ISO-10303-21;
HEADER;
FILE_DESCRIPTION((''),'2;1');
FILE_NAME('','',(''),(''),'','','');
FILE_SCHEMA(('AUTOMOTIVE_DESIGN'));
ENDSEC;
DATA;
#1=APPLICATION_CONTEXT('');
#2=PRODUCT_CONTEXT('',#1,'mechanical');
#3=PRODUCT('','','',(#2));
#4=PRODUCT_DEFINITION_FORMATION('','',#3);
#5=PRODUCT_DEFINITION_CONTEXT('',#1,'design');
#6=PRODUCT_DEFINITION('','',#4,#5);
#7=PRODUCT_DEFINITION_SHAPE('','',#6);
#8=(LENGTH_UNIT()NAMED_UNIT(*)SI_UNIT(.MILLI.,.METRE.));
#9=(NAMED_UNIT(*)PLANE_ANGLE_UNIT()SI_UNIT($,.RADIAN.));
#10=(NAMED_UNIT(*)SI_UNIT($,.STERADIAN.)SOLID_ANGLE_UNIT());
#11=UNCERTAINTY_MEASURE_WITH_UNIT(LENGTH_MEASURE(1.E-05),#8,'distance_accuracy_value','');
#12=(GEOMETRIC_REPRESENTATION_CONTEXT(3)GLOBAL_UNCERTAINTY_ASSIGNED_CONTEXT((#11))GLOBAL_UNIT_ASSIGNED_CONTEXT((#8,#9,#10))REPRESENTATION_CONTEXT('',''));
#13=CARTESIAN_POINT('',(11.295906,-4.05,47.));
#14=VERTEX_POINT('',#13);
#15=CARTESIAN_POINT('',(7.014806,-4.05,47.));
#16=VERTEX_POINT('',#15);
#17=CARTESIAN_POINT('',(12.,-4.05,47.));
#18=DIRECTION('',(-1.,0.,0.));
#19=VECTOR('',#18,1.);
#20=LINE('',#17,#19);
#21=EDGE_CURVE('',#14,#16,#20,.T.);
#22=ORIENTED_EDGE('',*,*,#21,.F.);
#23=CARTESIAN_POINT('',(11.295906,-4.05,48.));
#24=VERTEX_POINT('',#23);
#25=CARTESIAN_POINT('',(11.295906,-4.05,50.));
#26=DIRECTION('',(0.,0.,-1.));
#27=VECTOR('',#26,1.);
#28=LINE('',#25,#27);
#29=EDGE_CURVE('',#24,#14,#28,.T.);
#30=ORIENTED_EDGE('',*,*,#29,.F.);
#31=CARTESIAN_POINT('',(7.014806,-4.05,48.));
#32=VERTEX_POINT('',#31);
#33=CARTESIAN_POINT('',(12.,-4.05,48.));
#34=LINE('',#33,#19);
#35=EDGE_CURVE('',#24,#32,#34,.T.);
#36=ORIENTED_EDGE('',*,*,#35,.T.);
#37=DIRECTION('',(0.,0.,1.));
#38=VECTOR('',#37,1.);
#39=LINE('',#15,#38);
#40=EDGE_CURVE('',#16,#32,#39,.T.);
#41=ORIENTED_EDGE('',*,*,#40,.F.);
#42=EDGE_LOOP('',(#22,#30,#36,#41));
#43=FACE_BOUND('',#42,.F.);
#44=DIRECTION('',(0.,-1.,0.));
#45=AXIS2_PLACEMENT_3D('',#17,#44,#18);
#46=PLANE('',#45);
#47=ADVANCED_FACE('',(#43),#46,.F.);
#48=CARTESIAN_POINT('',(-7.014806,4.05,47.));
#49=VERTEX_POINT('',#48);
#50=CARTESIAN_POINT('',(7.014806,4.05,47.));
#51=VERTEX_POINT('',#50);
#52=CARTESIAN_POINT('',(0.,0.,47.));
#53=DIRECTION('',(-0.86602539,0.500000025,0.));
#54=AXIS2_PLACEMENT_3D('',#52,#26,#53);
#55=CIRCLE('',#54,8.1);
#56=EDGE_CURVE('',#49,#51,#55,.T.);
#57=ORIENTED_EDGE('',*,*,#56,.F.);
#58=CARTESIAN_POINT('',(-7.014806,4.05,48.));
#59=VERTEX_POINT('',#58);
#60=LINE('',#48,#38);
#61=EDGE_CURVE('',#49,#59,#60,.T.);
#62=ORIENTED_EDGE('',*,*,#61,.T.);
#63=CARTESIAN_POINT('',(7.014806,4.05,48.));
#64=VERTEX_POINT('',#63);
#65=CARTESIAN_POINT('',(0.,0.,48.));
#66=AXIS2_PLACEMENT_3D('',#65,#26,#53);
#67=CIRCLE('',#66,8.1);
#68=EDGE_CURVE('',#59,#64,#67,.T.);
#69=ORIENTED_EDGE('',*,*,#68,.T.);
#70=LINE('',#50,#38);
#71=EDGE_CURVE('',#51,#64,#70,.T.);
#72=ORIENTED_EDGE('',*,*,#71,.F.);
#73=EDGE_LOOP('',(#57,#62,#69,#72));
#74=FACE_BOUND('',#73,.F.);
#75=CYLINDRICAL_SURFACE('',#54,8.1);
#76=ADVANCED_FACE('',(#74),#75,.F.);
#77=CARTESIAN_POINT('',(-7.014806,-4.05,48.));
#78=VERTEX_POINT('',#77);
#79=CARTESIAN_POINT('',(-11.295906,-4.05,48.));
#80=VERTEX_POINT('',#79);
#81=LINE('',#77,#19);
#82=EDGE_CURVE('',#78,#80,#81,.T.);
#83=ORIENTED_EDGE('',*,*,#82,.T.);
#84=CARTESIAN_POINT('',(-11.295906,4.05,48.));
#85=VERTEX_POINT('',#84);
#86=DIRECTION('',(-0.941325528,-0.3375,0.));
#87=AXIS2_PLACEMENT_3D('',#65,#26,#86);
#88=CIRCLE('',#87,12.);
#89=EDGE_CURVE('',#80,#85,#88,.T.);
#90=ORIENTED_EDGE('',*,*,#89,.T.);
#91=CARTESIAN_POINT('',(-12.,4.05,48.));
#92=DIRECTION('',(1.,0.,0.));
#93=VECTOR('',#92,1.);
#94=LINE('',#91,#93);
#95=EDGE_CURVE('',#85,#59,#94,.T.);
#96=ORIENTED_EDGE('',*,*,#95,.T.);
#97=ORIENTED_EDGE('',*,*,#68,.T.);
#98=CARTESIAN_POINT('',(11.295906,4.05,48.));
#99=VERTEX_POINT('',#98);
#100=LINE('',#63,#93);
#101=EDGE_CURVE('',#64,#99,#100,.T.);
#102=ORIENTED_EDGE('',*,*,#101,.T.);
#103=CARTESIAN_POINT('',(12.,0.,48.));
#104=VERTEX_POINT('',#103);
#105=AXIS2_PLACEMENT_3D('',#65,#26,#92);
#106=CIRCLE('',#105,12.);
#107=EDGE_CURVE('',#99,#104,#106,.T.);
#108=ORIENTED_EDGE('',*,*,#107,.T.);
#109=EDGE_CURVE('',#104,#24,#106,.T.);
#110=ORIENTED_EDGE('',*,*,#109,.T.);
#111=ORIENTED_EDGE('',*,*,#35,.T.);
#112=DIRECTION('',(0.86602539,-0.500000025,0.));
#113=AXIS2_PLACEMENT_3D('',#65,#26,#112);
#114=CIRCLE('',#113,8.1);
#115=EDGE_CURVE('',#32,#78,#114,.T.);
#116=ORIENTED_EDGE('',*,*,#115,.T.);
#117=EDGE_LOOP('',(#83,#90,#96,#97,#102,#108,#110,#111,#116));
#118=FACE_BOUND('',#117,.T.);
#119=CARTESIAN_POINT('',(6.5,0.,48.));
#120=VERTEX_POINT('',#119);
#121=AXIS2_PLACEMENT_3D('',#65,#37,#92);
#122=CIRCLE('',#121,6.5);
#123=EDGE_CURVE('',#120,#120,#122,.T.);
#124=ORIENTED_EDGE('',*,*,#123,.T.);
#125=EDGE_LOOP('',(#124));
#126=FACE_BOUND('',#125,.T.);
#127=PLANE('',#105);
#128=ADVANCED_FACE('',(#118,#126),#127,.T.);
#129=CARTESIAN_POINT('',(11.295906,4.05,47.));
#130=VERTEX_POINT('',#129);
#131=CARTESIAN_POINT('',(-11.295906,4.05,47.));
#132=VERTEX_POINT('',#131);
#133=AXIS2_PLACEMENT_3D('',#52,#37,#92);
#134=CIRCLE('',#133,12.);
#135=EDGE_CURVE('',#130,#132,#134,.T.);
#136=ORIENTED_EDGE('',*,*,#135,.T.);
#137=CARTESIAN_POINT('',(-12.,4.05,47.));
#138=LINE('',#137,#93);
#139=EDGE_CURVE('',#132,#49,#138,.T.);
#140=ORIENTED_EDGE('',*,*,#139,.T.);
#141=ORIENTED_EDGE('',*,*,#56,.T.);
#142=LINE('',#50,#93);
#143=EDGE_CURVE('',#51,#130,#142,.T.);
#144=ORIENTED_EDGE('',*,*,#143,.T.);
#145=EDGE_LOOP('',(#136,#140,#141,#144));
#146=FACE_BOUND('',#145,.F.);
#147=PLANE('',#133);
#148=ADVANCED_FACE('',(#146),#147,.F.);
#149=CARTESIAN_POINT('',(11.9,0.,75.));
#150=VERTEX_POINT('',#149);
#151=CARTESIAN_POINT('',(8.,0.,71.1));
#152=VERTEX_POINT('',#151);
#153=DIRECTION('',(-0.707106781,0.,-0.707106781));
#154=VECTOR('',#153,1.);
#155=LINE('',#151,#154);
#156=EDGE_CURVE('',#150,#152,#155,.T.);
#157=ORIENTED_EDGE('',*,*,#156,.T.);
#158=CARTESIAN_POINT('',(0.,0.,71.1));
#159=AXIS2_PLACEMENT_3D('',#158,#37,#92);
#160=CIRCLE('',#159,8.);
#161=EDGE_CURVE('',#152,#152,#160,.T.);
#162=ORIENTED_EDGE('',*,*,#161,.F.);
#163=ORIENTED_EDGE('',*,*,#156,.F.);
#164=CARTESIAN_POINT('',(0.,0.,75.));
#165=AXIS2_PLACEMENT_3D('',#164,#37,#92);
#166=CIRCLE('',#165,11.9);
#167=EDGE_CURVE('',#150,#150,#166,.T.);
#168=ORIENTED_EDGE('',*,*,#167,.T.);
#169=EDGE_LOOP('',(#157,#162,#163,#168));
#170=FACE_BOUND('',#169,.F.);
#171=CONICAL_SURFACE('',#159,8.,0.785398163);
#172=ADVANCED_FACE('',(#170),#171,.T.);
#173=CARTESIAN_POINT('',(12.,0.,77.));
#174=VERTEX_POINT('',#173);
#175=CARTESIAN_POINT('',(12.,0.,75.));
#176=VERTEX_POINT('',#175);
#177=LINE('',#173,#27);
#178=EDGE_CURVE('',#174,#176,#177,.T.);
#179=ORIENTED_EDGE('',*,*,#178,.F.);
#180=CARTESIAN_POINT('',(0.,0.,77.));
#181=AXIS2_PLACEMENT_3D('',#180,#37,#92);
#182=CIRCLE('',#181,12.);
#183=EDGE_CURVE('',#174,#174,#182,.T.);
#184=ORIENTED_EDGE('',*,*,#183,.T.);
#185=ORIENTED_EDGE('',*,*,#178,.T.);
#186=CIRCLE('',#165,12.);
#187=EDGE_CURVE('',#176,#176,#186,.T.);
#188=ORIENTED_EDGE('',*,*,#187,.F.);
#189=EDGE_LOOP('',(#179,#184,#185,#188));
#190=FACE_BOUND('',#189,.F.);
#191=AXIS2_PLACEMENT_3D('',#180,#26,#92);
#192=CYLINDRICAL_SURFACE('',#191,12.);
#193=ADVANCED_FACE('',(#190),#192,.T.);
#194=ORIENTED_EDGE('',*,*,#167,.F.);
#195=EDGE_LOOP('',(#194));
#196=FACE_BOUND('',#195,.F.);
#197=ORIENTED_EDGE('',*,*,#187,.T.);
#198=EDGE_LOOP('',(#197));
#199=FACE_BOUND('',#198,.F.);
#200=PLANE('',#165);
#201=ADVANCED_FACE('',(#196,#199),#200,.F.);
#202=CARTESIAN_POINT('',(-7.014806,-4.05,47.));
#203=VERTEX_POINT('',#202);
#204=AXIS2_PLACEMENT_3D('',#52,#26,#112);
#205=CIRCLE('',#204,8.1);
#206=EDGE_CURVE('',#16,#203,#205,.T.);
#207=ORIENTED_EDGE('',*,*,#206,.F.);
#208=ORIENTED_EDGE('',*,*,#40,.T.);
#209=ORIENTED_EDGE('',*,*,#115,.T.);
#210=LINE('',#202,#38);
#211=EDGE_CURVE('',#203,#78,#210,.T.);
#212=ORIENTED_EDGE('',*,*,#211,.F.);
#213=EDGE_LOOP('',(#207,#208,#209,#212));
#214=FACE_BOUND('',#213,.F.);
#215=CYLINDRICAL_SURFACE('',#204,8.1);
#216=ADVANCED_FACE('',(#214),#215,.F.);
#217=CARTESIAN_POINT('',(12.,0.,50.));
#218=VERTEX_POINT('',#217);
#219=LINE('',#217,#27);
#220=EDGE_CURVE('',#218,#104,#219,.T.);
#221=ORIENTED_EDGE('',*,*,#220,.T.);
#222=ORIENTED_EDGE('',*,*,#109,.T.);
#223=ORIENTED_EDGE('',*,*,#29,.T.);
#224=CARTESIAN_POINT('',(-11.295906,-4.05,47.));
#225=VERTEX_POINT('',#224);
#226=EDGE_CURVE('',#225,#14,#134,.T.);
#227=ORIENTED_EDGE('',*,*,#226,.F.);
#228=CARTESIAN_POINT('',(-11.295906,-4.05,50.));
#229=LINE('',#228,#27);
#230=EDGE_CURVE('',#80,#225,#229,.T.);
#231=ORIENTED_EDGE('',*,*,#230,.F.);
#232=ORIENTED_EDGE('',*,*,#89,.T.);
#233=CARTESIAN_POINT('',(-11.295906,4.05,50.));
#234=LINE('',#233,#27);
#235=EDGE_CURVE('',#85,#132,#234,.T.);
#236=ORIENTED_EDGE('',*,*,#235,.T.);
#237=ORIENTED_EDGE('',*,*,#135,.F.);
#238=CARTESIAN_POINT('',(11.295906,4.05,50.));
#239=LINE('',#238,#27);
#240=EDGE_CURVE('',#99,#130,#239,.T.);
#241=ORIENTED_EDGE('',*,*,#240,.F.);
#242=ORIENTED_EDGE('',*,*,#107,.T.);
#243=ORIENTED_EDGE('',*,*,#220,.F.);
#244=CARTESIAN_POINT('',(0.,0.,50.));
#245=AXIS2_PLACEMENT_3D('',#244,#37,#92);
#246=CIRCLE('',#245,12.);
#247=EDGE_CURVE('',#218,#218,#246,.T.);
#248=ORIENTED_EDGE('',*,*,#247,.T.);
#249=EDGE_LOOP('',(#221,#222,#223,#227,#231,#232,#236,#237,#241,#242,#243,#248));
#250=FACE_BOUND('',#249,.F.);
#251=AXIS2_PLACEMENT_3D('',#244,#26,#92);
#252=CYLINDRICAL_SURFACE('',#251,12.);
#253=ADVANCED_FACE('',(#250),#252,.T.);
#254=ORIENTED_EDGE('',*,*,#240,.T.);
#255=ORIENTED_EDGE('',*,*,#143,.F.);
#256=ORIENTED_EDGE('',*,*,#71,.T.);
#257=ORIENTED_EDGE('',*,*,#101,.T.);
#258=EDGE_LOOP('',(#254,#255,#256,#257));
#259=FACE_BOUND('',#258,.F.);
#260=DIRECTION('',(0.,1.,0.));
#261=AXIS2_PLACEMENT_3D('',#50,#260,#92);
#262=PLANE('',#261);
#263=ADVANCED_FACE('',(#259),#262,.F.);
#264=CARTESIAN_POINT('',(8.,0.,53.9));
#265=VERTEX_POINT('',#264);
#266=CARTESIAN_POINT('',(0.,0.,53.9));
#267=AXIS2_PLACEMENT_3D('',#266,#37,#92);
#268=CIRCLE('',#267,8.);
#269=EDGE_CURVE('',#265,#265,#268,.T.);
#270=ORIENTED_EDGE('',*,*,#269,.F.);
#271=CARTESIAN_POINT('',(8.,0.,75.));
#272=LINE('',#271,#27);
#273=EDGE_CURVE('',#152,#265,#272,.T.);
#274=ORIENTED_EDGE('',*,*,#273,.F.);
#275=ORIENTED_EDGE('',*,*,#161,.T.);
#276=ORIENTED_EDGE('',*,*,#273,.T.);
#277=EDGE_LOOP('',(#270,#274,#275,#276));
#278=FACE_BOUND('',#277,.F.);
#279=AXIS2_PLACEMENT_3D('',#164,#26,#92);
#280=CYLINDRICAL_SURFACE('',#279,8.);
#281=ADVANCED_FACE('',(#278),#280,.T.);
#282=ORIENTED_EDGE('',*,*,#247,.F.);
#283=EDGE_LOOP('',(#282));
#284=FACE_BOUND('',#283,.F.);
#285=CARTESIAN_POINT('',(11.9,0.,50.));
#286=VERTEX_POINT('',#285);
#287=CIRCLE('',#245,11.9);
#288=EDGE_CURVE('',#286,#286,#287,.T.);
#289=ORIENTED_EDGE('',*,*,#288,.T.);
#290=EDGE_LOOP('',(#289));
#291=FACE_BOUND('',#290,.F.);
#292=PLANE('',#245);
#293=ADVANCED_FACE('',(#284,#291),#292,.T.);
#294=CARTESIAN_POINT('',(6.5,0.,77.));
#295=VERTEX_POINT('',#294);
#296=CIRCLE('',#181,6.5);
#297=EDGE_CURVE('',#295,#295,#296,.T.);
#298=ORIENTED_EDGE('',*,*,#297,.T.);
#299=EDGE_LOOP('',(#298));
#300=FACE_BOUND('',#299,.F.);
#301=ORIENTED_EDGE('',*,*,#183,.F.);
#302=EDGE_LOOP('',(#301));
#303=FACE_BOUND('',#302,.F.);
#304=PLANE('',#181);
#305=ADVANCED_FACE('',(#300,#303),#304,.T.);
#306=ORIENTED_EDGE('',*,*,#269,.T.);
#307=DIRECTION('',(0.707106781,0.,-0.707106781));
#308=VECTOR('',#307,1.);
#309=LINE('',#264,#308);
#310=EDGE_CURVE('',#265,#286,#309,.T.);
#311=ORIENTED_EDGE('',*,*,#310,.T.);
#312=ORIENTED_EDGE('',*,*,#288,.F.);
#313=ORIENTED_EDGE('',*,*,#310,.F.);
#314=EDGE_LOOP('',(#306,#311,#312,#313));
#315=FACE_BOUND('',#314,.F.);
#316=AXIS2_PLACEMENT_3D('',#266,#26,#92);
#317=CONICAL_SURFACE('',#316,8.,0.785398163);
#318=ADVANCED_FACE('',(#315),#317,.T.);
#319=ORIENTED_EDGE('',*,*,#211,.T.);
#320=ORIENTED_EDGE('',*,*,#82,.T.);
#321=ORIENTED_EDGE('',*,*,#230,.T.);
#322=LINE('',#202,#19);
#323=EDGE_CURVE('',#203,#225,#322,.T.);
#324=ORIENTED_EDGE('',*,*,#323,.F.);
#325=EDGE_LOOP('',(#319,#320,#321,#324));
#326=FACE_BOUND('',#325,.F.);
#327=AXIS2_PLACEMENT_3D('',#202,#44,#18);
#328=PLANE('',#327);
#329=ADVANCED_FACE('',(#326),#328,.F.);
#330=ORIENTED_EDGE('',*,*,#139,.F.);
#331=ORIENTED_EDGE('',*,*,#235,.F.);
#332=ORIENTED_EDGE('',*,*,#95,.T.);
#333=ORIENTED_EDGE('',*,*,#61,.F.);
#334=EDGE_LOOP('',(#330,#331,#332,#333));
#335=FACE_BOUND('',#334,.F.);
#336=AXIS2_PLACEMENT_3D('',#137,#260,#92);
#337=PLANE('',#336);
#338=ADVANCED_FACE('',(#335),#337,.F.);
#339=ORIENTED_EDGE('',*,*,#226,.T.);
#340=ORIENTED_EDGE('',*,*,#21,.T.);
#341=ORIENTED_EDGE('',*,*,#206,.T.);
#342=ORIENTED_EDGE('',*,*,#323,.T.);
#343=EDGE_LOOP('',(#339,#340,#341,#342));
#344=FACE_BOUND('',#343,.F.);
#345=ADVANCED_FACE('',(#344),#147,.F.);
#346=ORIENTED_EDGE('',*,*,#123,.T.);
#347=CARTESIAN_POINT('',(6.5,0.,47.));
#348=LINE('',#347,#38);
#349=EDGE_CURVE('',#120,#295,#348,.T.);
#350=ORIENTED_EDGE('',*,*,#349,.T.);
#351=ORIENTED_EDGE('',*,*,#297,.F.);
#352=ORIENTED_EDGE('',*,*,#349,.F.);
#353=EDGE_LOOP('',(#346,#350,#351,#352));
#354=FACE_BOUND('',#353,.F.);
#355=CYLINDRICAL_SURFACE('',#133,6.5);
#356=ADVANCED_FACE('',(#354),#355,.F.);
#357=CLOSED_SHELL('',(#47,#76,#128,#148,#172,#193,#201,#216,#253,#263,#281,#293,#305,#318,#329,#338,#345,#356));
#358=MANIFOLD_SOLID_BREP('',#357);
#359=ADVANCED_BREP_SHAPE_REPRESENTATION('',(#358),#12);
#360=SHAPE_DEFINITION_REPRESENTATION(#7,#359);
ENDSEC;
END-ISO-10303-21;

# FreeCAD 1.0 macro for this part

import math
import FreeCAD as App
import Part
import Sketcher

V = App.Vector


def edges_at(feature, points):
    """Names of the edges that pass closest to the given points."""
    edges = feature.Shape.Edges
    near = lambda p: min(range(len(edges)), key=lambda i: edges[i].distToShape(Part.Vertex(*p))[0])
    return sorted({f"Edge{near(p) + 1}" for p in points})


def add_polygon(sketch, points):
    """Adds a closed chain of lines whose ends are joined by coincident constraints."""
    first, n = sketch.GeometryCount, len(points)
    for a, b in zip(points, points[1:] + points[:1]):
        sketch.addGeometry(Part.LineSegment(App.Vector(*a, 0), App.Vector(*b, 0)), False)
    for i in range(n):
        sketch.addConstraint(Sketcher.Constraint("Coincident", first + i, 2, first + (i + 1) % n, 1))

doc = App.newDocument("Part")
body = doc.addObject("PartDesign::Body", "Body")

sketch1 = body.newObject("Sketcher::SketchObject", "Sketch")
sketch1.AttachmentSupport = (doc.getObject("XZ_Plane"), [""])
sketch1.MapMode = "FlatFace"
add_polygon(sketch1, [(12, 77), (6.5, 77), (6.5, 47), (12, 47), (12, 50), (8, 50), (8, 75), (12, 75)])
sketch1.addConstraint([
    Sketcher.Constraint("Horizontal", 0),
    Sketcher.Constraint("Vertical", 1),
    Sketcher.Constraint("Horizontal", 2),
    Sketcher.Constraint("Vertical", 3),
    Sketcher.Constraint("Horizontal", 4),
    Sketcher.Constraint("Vertical", 5),
    Sketcher.Constraint("Horizontal", 6),
    Sketcher.Constraint("Vertical", 7),
    Sketcher.Constraint("Vertical", 3, 2, 6, 2),
    Sketcher.Constraint("DistanceX", 4, 2, 4, 1, 4.0),
    Sketcher.Constraint("DistanceY", 1, 2, 1, 1, 30.0),
    Sketcher.Constraint("DistanceY", 3, 1, 3, 2, 3.0),
    Sketcher.Constraint("DistanceY", 5, 1, 5, 2, 25.0),
    Sketcher.Constraint("DistanceX", 0, 2, 0, 1, 5.5),
    Sketcher.Constraint("DistanceY", -1, 1, 0, 2, 77.0),
    Sketcher.Constraint("DistanceX", -1, 1, 2, 2, 12.0),
])
revolution = body.newObject("PartDesign::Revolution", "Revolution")
revolution.Profile = sketch1
revolution.ReferenceAxis = (sketch1, ["V_Axis"])
revolution.Angle = 360

sketch2 = body.newObject("Sketcher::SketchObject", "Sketch001")
sketch2.AttachmentSupport = (doc.getObject("XY_Plane"), [""])
sketch2.MapMode = "FlatFace"
sketch2.AttachmentOffset = App.Placement(V(0, 0, 47), App.Rotation())
sketch2.addGeometry([
    Part.ArcOfCircle(Part.Circle(V(0, 0, 0), V(0, 0, 1), 8.1), math.radians(-150), math.radians(-30)),
    Part.LineSegment(V(-7, -4, 0), V(-12, -4, 0)),
    Part.LineSegment(V(-12, -4, 0), V(-12, 4, 0)),
    Part.LineSegment(V(-12, 4, 0), V(-7, 4, 0)),
    Part.ArcOfCircle(Part.Circle(V(0, 0, 0), V(0, 0, 1), 8.1), math.radians(30), math.radians(150)),
    Part.LineSegment(V(7, 4, 0), V(12, 4, 0)),
    Part.LineSegment(V(12, 4, 0), V(12, -4, 0)),
    Part.LineSegment(V(12, -4, 0), V(7, -4, 0)),
], False)
sketch2.addConstraint([
    Sketcher.Constraint("Coincident", 0, 1, 1, 1),
    Sketcher.Constraint("Coincident", 1, 2, 2, 1),
    Sketcher.Constraint("Coincident", 2, 2, 3, 1),
    Sketcher.Constraint("Coincident", 3, 2, 4, 2),
    Sketcher.Constraint("Coincident", 4, 1, 5, 1),
    Sketcher.Constraint("Coincident", 5, 2, 6, 1),
    Sketcher.Constraint("Coincident", 6, 2, 7, 1),
    Sketcher.Constraint("Coincident", 7, 2, 0, 2),
    Sketcher.Constraint("Horizontal", 1),
    Sketcher.Constraint("Vertical", 2),
    Sketcher.Constraint("Horizontal", 3),
    Sketcher.Constraint("Horizontal", 5),
    Sketcher.Constraint("Vertical", 6),
    Sketcher.Constraint("Horizontal", 7),
    Sketcher.Constraint("Coincident", 0, 3, -1, 1),
    Sketcher.Constraint("Coincident", 4, 3, -1, 1),
    Sketcher.Constraint("Equal", 0, 4),
    Sketcher.Constraint("Symmetric", 1, 2, 5, 2, -1, 1),
    Sketcher.Constraint("Horizontal", 3, 2, 4, 1),
    Sketcher.Constraint("Horizontal", 1, 2, 6, 2),
    Sketcher.Constraint("Radius", 0, 8.1),
    Sketcher.Constraint("DistanceY", 2, 1, 2, 2, 8.1),
    Sketcher.Constraint("DistanceX", 1, 2, -1, 1, 12.0),
])
pocket1 = body.newObject("PartDesign::Pocket", "Pocket")
pocket1.Profile = sketch2
pocket1.Length = 1
pocket1.Reversed = True
doc.recompute()

chamfer = body.newObject("PartDesign::Chamfer", "Chamfer")
chamfer.Base = (pocket1, edges_at(pocket1, [(-8, 0, 75), (-8, 0, 50)]))
chamfer.Size = 3.9

doc.recompute()
